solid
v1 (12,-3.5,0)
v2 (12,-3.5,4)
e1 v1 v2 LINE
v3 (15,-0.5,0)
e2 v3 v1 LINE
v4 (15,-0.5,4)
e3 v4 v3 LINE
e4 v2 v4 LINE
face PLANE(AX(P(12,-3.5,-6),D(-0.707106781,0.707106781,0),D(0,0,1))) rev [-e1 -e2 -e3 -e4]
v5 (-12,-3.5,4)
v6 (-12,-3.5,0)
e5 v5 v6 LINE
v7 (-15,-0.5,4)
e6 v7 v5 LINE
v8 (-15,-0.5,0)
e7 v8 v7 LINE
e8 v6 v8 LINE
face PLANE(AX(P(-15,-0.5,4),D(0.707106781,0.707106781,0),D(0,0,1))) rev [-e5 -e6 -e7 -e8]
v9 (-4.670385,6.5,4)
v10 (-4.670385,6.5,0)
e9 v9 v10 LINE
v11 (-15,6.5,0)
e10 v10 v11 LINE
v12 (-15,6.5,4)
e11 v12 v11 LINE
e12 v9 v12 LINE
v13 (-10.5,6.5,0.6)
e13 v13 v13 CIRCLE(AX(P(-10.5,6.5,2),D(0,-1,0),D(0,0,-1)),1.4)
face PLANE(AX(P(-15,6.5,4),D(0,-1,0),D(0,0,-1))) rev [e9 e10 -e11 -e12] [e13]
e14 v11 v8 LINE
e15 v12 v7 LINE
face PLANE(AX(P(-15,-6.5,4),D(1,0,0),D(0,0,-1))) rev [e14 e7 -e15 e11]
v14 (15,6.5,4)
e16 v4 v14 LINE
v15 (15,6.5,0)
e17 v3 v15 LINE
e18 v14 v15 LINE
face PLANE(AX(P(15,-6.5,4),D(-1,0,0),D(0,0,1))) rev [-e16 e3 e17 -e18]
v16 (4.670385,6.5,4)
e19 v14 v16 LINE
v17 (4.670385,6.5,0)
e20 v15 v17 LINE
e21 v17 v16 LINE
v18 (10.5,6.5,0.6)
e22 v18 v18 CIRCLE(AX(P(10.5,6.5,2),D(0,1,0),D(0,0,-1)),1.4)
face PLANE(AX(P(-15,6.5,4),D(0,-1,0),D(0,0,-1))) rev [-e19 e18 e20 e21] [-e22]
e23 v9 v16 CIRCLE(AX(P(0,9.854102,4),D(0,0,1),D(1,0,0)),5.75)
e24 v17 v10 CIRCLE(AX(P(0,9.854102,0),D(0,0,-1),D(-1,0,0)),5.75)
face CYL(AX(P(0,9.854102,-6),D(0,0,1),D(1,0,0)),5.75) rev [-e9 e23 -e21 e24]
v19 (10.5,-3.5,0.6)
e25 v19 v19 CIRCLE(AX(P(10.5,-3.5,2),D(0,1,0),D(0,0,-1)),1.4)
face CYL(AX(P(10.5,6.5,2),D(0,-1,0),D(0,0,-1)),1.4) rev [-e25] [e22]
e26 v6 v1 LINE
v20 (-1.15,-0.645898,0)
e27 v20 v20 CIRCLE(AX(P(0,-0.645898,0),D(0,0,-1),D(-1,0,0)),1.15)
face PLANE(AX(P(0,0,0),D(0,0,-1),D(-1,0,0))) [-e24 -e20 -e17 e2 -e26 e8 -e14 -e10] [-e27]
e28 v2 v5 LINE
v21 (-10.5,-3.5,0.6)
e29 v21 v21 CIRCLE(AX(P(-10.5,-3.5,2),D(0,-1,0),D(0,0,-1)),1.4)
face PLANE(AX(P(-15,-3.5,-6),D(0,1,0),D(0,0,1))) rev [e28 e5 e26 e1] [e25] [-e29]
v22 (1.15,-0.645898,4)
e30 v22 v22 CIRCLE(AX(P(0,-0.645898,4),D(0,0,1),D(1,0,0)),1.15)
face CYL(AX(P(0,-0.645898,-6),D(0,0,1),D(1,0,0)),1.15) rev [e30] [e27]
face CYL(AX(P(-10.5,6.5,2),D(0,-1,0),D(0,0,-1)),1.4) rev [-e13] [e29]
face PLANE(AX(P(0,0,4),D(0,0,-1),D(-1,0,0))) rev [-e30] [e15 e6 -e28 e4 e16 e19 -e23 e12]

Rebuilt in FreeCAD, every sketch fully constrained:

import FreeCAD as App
import Part
import Sketcher


def edges_at(feature, points):
    """Names of the edges that pass closest to the given points."""
    edges = feature.Shape.Edges
    near = lambda p: min(range(len(edges)), key=lambda i: edges[i].distToShape(Part.Vertex(*p))[0])
    return sorted({f"Edge{near(p) + 1}" for p in points})


def add_polygon(sketch, points):
    """Adds a closed chain of lines whose ends are joined by coincident constraints."""
    first, n = sketch.GeometryCount, len(points)
    for a, b in zip(points, points[1:] + points[:1]):
        sketch.addGeometry(Part.LineSegment(App.Vector(*a, 0), App.Vector(*b, 0)), False)
    for i in range(n):
        sketch.addConstraint(Sketcher.Constraint("Coincident", first + i, 2, first + (i + 1) % n, 1))

doc = App.newDocument("Part")
params = doc.addObject("Spreadsheet::Sheet", "Params")
for row, (alias, value) in enumerate([
    ("sketch1_width", "30 mm"),
    ("sketch1_height", "13 mm"),
    ("pad1_length", "4 mm"),
    ("sketch2_diameter", "11.5 mm"),
    ("pocket1_length", "10 mm"),
    ("sketch3_width", "30 mm"),
    ("sketch3_height", "3 mm"),
    ("pocket2_length", "10 mm"),
    ("chamfer_size", "3 mm"),
    ("sketch4_diameter", "2.8 mm"),
    ("sketch5_diameter", "2.3 mm"),
    ("pocket4_length", "10 mm"),
], start=1):
    params.set(f"A{row}", alias)
    params.set(f"B{row}", "=" + value)
    params.setAlias(f"B{row}", alias)

body = doc.addObject("PartDesign::Body", "Body")

sketch1 = body.newObject("Sketcher::SketchObject", "Sketch")
sketch1.AttachmentSupport = (doc.getObject("XY_Plane"), [""])
sketch1.MapMode = "FlatFace"
add_polygon(sketch1, [(-15, 6), (-15, -6), (15, -6), (15, 6)])
sketch1.addConstraint(Sketcher.Constraint("Vertical", 0))
sketch1.addConstraint(Sketcher.Constraint("Horizontal", 1))
sketch1.addConstraint(Sketcher.Constraint("Vertical", 2))
sketch1.addConstraint(Sketcher.Constraint("Horizontal", 3))
sketch1.addConstraint(Sketcher.Constraint("Symmetric", 0, 2, 2, 2, -1, 1))
sketch1.addConstraint(Sketcher.Constraint("DistanceX", 1, 1, 1, 2, 30.0))
sketch1.addConstraint(Sketcher.Constraint("DistanceY", 0, 2, 0, 1, 13.0))
sketch1.setExpression("Constraints[9]", "Params.sketch1_width")
sketch1.setExpression("Constraints[10]", "Params.sketch1_height")
pad1 = body.newObject("PartDesign::Pad", "Pad")
pad1.Profile = sketch1
pad1.setExpression("Length", "Params.pad1_length")

sketch2 = body.newObject("Sketcher::SketchObject", "Sketch001")
sketch2.AttachmentSupport = (doc.getObject("XY_Plane"), [""])
sketch2.MapMode = "FlatFace"
sketch2.AttachmentOffset = App.Placement(App.Vector(0, 0, 4), App.Rotation())
sketch2.addGeometry(Part.Circle(App.Vector(0, 10, 0), App.Vector(0, 0, 1), 6), False)
sketch2.addConstraint(Sketcher.Constraint("PointOnObject", 0, 3, -2))
sketch2.addConstraint(Sketcher.Constraint("Diameter", 0, 11.5))
sketch2.addConstraint(Sketcher.Constraint("DistanceY", -1, 1, 0, 3, 9.854102))
sketch2.setExpression("Constraints[1]", "Params.sketch2_diameter")
pocket1 = body.newObject("PartDesign::Pocket", "Pocket")
pocket1.Profile = sketch2
pocket1.setExpression("Length", "Params.pocket1_length")

sketch3 = body.newObject("Sketcher::SketchObject", "Sketch002")
sketch3.AttachmentSupport = (doc.getObject("XY_Plane"), [""])
sketch3.MapMode = "FlatFace"
sketch3.AttachmentOffset = App.Placement(App.Vector(0, 0, 4), App.Rotation())
add_polygon(sketch3, [(-15, -3.5), (-15, -6.5), (15, -6.5), (15, -3.5)])
sketch3.addConstraint(Sketcher.Constraint("Vertical", 0))
sketch3.addConstraint(Sketcher.Constraint("Horizontal", 1))
sketch3.addConstraint(Sketcher.Constraint("Vertical", 2))
sketch3.addConstraint(Sketcher.Constraint("Horizontal", 3))
sketch3.addConstraint(Sketcher.Constraint("DistanceX", 1, 1, 1, 2, 30.0))
sketch3.addConstraint(Sketcher.Constraint("DistanceY", 0, 2, 0, 1, 3.0))
sketch3.addConstraint(Sketcher.Constraint("DistanceX", 0, 2, -1, 1, 15.0))
sketch3.addConstraint(Sketcher.Constraint("DistanceY", 0, 2, -1, 1, 6.5))
sketch3.setExpression("Constraints[8]", "Params.sketch3_width")
sketch3.setExpression("Constraints[9]", "Params.sketch3_height")
pocket2 = body.newObject("PartDesign::Pocket", "Pocket001")
pocket2.Profile = sketch3
pocket2.setExpression("Length", "Params.pocket2_length")
doc.recompute()

chamfer = body.newObject("PartDesign::Chamfer", "Chamfer")
chamfer.Base = (pocket2, edges_at(pocket2, [(-15, -3.5, 2), (15, -3.5, 2)]))
chamfer.setExpression("Size", "Params.chamfer_size")

sketch4 = body.newObject("Sketcher::SketchObject", "Sketch003")
sketch4.AttachmentSupport = (doc.getObject("XZ_Plane"), [""])
sketch4.MapMode = "FlatFace"
sketch4.AttachmentOffset = App.Placement(App.Vector(0, 0, 3.5), App.Rotation())
sketch4.addGeometry(Part.Circle(App.Vector(-10.5, 2, 0), App.Vector(0, 0, 1), 1.4), False)
sketch4.addConstraint(Sketcher.Constraint("Diameter", 0, 2.8))
sketch4.addConstraint(Sketcher.Constraint("DistanceY", -1, 1, 0, 3, 2.0))
sketch4.addConstraint(Sketcher.Constraint("DistanceX", 0, 3, -1, 1, 10.5))
sketch4.setExpression("Constraints[0]", "Params.sketch4_diameter")
pocket3 = body.newObject("PartDesign::Pocket", "Pocket002")
pocket3.Profile = sketch4
pocket3.Type = "ThroughAll"
doc.recompute()

mirrored = body.newObject("PartDesign::Mirrored", "Mirrored")
mirrored.Originals = [pocket3]
mirrored.MirrorPlane = (doc.getObject("YZ_Plane"), [""])
body.Tip = mirrored

sketch5 = body.newObject("Sketcher::SketchObject", "Sketch004")
sketch5.AttachmentSupport = (doc.getObject("XY_Plane"), [""])
sketch5.MapMode = "FlatFace"
sketch5.AttachmentOffset = App.Placement(App.Vector(0, 0, 4), App.Rotation())
sketch5.addGeometry(Part.Circle(App.Vector(0, -0.6, 0), App.Vector(0, 0, 1), 1.1), False)
sketch5.addConstraint(Sketcher.Constraint("PointOnObject", 0, 3, -2))
sketch5.addConstraint(Sketcher.Constraint("Diameter", 0, 2.3))
sketch5.addConstraint(Sketcher.Constraint("DistanceY", 0, 3, -1, 1, 0.645898))
sketch5.setExpression("Constraints[1]", "Params.sketch5_diameter")
pocket4 = body.newObject("PartDesign::Pocket", "Pocket003")
pocket4.Profile = sketch5
pocket4.setExpression("Length", "Params.pocket4_length")

doc.recompute()
